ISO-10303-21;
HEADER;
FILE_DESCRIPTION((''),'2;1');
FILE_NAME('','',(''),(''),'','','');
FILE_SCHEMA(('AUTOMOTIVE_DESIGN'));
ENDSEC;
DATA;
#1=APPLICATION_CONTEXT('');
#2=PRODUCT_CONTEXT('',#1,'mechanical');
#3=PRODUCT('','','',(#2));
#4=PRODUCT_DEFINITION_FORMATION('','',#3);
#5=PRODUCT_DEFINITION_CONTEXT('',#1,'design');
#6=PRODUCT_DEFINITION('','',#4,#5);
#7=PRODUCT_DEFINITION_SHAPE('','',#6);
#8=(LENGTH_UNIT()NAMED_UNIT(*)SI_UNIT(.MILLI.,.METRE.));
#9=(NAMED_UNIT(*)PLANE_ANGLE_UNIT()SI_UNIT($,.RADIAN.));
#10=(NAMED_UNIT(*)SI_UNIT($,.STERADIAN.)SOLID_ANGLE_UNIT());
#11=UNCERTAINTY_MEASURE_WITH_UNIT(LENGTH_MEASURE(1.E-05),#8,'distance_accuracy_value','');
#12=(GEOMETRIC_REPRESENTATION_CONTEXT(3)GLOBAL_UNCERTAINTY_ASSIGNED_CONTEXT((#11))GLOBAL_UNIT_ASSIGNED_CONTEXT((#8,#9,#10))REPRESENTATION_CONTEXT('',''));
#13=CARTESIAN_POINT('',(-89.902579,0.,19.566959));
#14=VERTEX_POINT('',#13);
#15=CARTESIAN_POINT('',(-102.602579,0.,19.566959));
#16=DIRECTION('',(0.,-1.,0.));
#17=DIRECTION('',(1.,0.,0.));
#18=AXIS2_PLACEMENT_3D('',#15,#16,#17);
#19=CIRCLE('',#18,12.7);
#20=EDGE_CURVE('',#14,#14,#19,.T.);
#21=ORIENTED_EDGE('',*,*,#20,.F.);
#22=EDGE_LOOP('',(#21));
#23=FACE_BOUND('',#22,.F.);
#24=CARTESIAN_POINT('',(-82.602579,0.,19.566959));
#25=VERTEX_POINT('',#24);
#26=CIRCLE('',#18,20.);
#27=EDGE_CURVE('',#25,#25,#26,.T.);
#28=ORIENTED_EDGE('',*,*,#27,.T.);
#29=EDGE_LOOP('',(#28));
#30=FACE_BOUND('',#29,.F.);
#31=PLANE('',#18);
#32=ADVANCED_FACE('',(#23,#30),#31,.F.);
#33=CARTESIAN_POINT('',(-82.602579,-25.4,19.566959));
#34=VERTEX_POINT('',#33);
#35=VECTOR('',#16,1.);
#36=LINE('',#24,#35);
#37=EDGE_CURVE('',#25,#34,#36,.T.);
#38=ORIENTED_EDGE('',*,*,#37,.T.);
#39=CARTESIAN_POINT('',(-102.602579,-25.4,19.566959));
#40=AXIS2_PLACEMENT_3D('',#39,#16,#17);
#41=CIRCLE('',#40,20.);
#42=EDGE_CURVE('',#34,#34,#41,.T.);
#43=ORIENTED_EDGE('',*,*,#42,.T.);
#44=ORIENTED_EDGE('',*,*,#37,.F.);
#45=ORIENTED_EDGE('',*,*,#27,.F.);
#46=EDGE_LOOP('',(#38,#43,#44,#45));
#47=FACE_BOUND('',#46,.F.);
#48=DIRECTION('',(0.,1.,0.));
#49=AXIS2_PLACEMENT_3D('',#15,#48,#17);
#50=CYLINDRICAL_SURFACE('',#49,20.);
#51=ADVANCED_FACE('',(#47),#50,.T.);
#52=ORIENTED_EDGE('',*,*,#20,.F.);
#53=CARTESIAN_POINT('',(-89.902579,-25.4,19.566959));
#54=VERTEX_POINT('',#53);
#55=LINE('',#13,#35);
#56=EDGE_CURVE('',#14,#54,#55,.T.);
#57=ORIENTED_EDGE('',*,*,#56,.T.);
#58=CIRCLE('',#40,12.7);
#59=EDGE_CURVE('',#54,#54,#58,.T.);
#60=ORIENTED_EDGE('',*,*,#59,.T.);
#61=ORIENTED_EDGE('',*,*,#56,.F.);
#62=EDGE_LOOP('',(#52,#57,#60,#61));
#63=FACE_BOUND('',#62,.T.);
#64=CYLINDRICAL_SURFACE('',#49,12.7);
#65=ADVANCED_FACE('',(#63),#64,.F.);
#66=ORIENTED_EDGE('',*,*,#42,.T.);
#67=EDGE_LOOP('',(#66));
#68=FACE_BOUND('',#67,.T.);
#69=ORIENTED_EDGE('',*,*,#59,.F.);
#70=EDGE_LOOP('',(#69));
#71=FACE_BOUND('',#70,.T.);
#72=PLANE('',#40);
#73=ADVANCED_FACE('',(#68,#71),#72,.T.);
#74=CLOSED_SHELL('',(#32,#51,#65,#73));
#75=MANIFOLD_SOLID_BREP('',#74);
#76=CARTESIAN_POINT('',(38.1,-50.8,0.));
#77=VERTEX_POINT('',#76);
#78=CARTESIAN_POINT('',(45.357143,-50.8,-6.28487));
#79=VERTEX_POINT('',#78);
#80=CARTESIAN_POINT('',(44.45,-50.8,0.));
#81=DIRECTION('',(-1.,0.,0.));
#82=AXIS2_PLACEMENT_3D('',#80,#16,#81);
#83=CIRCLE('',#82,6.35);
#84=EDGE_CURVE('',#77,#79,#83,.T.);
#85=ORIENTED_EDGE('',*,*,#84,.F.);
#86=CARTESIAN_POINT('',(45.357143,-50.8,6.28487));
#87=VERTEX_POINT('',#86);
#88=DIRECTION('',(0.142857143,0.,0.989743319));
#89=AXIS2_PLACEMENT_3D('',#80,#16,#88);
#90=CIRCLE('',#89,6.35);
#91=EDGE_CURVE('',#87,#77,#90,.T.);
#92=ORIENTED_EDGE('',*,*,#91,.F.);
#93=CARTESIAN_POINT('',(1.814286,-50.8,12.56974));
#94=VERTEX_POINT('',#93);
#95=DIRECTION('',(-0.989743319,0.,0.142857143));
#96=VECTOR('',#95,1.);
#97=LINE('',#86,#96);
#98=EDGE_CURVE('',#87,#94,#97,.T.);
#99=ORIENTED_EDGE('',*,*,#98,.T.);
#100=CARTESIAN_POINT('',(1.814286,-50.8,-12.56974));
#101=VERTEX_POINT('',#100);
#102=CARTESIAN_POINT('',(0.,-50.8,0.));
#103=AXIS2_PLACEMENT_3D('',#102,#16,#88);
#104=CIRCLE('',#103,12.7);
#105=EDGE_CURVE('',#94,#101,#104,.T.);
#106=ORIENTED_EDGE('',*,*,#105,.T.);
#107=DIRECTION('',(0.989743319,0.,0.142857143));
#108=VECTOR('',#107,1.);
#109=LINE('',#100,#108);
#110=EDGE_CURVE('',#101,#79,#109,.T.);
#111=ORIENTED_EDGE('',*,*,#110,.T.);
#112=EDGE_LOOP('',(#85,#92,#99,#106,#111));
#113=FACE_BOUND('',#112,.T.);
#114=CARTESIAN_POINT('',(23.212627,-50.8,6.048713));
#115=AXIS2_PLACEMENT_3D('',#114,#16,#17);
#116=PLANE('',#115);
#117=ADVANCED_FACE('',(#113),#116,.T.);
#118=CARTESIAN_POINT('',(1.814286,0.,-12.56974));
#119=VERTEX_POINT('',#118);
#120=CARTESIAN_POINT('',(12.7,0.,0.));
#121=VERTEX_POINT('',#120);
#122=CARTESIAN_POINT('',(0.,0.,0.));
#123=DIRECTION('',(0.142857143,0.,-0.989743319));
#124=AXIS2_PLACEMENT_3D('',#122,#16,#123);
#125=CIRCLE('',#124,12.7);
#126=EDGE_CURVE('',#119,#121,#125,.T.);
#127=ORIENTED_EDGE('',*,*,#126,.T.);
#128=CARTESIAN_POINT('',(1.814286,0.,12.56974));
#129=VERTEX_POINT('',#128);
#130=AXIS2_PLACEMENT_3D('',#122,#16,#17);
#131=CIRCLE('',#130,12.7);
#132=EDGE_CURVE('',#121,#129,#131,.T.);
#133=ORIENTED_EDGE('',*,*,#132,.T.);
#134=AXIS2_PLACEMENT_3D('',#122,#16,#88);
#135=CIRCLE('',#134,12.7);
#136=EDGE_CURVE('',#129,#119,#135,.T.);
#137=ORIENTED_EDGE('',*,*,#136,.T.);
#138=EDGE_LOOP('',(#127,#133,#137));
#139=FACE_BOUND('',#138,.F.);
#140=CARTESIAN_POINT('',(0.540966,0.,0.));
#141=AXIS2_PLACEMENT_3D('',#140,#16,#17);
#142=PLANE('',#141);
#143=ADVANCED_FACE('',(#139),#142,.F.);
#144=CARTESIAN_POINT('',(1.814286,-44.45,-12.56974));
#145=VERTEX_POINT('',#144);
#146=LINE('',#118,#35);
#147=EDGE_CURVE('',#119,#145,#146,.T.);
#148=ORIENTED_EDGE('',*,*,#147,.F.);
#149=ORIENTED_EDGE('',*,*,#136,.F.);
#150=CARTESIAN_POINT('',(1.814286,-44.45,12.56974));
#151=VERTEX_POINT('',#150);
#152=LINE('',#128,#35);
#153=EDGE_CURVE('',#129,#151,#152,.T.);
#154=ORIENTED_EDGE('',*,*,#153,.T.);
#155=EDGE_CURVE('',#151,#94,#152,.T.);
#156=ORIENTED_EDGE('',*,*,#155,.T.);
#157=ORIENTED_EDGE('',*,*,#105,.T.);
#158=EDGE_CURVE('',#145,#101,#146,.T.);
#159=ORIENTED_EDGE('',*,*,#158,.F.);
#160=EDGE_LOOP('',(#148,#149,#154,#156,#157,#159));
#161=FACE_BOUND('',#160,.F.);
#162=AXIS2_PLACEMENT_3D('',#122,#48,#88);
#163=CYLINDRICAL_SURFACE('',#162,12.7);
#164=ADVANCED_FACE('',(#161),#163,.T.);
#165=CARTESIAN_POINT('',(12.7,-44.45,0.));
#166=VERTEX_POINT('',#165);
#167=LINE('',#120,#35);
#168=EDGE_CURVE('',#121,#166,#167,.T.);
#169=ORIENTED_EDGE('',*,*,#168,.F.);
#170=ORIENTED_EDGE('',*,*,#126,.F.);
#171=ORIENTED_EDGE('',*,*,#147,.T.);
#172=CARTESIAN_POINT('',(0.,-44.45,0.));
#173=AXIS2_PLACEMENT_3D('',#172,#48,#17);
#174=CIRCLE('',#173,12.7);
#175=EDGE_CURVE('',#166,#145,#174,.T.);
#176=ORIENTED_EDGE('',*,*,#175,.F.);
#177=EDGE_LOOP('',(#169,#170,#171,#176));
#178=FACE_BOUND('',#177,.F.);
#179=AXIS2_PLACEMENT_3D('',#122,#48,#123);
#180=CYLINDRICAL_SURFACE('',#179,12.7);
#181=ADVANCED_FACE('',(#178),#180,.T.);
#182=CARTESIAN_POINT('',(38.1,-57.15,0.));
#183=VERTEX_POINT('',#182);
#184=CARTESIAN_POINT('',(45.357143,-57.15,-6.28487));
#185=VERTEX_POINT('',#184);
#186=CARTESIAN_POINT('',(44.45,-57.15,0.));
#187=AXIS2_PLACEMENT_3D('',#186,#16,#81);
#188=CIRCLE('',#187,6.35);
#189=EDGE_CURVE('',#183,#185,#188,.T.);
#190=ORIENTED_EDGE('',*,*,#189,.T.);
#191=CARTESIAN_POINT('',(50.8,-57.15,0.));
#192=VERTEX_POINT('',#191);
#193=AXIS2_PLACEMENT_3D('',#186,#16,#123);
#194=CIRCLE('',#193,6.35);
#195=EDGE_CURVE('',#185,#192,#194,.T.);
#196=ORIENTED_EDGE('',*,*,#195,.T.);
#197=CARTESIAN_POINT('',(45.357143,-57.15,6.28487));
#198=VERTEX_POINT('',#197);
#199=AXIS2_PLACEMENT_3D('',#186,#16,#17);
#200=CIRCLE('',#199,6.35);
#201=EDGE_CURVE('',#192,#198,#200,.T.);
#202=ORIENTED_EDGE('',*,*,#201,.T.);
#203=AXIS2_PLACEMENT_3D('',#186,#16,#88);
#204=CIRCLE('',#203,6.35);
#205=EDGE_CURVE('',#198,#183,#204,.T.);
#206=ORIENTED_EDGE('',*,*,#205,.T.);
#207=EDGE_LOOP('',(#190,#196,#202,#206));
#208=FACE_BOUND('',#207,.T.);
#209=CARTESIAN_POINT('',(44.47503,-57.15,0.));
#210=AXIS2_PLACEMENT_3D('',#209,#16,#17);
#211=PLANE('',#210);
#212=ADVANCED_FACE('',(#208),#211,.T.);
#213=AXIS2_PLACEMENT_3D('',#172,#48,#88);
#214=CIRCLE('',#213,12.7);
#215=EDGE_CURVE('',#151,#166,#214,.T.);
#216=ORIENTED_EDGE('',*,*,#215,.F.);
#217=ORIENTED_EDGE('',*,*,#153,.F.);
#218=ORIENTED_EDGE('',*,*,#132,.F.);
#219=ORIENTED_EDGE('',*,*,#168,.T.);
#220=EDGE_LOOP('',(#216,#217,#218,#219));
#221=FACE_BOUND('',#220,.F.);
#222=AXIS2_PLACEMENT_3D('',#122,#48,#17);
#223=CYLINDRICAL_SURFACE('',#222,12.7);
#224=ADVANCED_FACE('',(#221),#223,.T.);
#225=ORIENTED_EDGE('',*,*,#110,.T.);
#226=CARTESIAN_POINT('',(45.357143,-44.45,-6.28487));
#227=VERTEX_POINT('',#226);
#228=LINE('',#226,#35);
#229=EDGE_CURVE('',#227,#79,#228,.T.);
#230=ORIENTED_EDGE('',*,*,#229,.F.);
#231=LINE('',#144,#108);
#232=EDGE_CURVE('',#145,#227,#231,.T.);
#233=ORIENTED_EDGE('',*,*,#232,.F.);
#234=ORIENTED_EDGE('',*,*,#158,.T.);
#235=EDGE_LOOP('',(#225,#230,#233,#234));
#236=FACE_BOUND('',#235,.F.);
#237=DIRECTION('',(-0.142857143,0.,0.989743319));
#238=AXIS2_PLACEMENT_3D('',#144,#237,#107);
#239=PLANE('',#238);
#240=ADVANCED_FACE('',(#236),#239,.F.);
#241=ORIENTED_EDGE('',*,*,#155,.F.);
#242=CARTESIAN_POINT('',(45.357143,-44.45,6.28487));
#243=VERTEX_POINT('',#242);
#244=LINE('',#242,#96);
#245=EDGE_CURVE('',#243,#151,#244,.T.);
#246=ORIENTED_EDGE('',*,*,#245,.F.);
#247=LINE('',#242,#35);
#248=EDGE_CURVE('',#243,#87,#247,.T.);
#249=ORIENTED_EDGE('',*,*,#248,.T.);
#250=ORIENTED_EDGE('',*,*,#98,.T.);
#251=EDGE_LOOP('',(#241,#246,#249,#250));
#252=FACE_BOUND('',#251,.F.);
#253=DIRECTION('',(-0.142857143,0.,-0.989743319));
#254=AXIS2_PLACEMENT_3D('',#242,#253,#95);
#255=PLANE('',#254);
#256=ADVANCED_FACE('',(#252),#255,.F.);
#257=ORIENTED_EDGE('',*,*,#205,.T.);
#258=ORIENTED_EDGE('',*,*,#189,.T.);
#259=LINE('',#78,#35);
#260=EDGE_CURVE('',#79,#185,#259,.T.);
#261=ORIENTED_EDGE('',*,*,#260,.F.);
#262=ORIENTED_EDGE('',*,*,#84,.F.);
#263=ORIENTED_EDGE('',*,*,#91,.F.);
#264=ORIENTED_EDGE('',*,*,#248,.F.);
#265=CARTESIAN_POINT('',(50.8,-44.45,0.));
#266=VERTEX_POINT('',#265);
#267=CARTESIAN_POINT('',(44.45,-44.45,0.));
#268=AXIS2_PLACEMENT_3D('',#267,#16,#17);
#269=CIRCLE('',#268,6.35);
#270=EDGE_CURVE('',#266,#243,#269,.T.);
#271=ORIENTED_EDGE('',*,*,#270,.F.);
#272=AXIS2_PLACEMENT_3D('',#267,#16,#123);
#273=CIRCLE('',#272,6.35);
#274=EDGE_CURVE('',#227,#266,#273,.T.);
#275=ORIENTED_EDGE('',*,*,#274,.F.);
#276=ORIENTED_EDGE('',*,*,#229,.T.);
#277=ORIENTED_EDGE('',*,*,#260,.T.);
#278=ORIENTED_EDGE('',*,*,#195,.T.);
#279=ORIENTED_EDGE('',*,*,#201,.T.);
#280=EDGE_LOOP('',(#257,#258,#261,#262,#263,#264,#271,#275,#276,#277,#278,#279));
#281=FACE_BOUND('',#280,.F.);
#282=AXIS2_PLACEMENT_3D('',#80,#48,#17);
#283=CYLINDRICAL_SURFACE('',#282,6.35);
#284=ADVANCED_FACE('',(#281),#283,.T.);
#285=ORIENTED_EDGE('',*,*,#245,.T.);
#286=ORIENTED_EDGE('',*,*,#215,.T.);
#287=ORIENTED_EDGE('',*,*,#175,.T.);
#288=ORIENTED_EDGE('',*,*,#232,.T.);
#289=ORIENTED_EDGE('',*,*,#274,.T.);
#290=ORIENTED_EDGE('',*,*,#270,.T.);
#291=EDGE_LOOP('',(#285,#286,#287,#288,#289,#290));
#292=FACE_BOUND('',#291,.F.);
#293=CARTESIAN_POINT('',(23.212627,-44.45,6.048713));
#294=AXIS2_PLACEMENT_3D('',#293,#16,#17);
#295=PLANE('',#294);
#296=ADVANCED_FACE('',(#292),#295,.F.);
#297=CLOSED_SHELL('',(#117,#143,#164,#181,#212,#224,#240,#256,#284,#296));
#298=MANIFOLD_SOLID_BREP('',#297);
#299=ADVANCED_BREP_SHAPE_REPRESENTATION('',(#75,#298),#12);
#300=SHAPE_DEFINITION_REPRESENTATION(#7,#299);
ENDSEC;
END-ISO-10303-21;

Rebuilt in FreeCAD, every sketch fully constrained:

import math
import FreeCAD as App
import Part
import Sketcher
Q = App.Units.Quantity

doc = App.newDocument("Part")
params = doc.addObject("Spreadsheet::Sheet", "Params")
for row, (alias, value) in enumerate([
    ("sketch1_radius", "0.5 in"),
    ("pad1_length", "2 in"),
    ("sketch2_radius", "0.5 in"),
    ("sketch2_radius2", "0.25 in"),
    ("pad2_length", "0.25 in"),
    ("sketch3_radius", "0.25 in"),
    ("pad3_length", "0.25 in"),
    ("sketch4_diameter", "1 in"),
    ("pad4_length", "1 in"),
], start=1):
    params.set(f"A{row}", alias)
    params.set(f"B{row}", "=" + value)
    params.setAlias(f"B{row}", alias)

body = doc.addObject("PartDesign::Body", "Body")

# Sketch on XZ plane
sketch1 = body.newObject("Sketcher::SketchObject", "Sketch")
sketch1.AttachmentSupport = (doc.getObject("XZ_Plane"), [""])
sketch1.MapMode = "FlatFace"
sketch1.addGeometry(Part.ArcOfCircle(Part.Circle(App.Vector(0, 0, 0), App.Vector(0, 0, 1), 13), math.radians(-82), math.radians(0)), False)
sketch1.addGeometry(Part.ArcOfCircle(Part.Circle(App.Vector(0, 0, 0), App.Vector(0, 0, 1), 13), math.radians(0), math.radians(82)), False)
sketch1.addGeometry(Part.ArcOfCircle(Part.Circle(App.Vector(0, 0, 0), App.Vector(0, 0, 1), 13), math.radians(82), math.radians(278)), False)
sketch1.addConstraint(Sketcher.Constraint("Tangent", 0, 2, 1, 1))
sketch1.addConstraint(Sketcher.Constraint("Tangent", 1, 2, 2, 1))
sketch1.addConstraint(Sketcher.Constraint("Tangent", 2, 2, 0, 1))
sketch1.addConstraint(Sketcher.Constraint("Coincident", 0, 3, -1, 1))
sketch1.addConstraint(Sketcher.Constraint("PointOnObject", 0, 2, -1))
sketch1.addConstraint(Sketcher.Constraint("Vertical", 1, 2, 2, 2))
sketch1.addConstraint(Sketcher.Constraint("Radius", 0, Q("0.5 in")))
sketch1.addConstraint(Sketcher.Constraint("DistanceY", -1, 1, 1, 2, 12.56974))
sketch1.setExpression("Constraints[6]", "Params.sketch1_radius")
pad1 = body.newObject("PartDesign::Pad", "Pad")
pad1.Profile = sketch1
pad1.setExpression("Length", "Params.pad1_length")

# Sketch on XZ plane
sketch2 = body.newObject("Sketcher::SketchObject", "Sketch001")
sketch2.AttachmentSupport = (doc.getObject("XZ_Plane"), [""])
sketch2.MapMode = "FlatFace"
sketch2.AttachmentOffset = App.Placement(App.Vector(0, 0, 1.75 * 25.4), App.Rotation())
sketch2.addGeometry(Part.ArcOfCircle(Part.Circle(App.Vector(0, 0, 0), App.Vector(0, 0, 1), 13), math.radians(0), math.radians(82)), False)
sketch2.addGeometry(Part.ArcOfCircle(Part.Circle(App.Vector(0, 0, 0), App.Vector(0, 0, 1), 13), math.radians(-82), math.radians(0)), False)
sketch2.addGeometry(Part.LineSegment(App.Vector(2, -13, 0), App.Vector(45, -6, 0)), False)
sketch2.addGeometry(Part.ArcOfCircle(Part.Circle(App.Vector(44, 0, 0), App.Vector(0, 0, 1), 6), math.radians(-82), math.radians(0)), False)
sketch2.addGeometry(Part.ArcOfCircle(Part.Circle(App.Vector(44, 0, 0), App.Vector(0, 0, 1), 6), math.radians(0), math.radians(82)), False)
sketch2.addGeometry(Part.LineSegment(App.Vector(45, 6, 0), App.Vector(2, 13, 0)), False)
sketch2.addConstraint(Sketcher.Constraint("Tangent", 0, 1, 1, 2))
sketch2.addConstraint(Sketcher.Constraint("Tangent", 1, 1, 2, 1))
sketch2.addConstraint(Sketcher.Constraint("Tangent", 2, 2, 3, 1))
sketch2.addConstraint(Sketcher.Constraint("Tangent", 3, 2, 4, 1))
sketch2.addConstraint(Sketcher.Constraint("Tangent", 4, 2, 5, 1))
sketch2.addConstraint(Sketcher.Constraint("Tangent", 5, 2, 0, 2))
sketch2.addConstraint(Sketcher.Constraint("Coincident", 0, 3, -1, 1))
sketch2.addConstraint(Sketcher.Constraint("Equal", 0, 1))
sketch2.addConstraint(Sketcher.Constraint("Equal", 3, 4))
sketch2.addConstraint(Sketcher.Constraint("PointOnObject", 3, 3, -1))
sketch2.addConstraint(Sketcher.Constraint("PointOnObject", 0, 1, -1))
sketch2.addConstraint(Sketcher.Constraint("PointOnObject", 3, 2, -1))
sketch2.addConstraint(Sketcher.Constraint("Radius", 0, Q("0.5 in")))
sketch2.addConstraint(Sketcher.Constraint("Radius", 3, Q("0.25 in")))
sketch2.addConstraint(Sketcher.Constraint("DistanceX", -1, 1, 3, 2, Q("2 in")))
sketch2.setExpression("Constraints[12]", "Params.sketch2_radius")
sketch2.setExpression("Constraints[13]", "Params.sketch2_radius2")
pad2 = body.newObject("PartDesign::Pad", "Pad001")
pad2.Profile = sketch2
pad2.setExpression("Length", "Params.pad2_length")

# Sketch on XZ plane
sketch3 = body.newObject("Sketcher::SketchObject", "Sketch002")
sketch3.AttachmentSupport = (doc.getObject("XZ_Plane"), [""])
sketch3.MapMode = "FlatFace"
sketch3.AttachmentOffset = App.Placement(App.Vector(0, 0, 2 * 25.4), App.Rotation())
sketch3.addGeometry(Part.ArcOfCircle(Part.Circle(App.Vector(44, 0, 0), App.Vector(0, 0, 1), 6), math.radians(82), math.radians(180)), False)
sketch3.addGeometry(Part.ArcOfCircle(Part.Circle(App.Vector(44, 0, 0), App.Vector(0, 0, 1), 6), math.radians(180), math.radians(278)), False)
sketch3.addGeometry(Part.ArcOfCircle(Part.Circle(App.Vector(44, 0, 0), App.Vector(0, 0, 1), 6), math.radians(-82), math.radians(0)), False)
sketch3.addGeometry(Part.ArcOfCircle(Part.Circle(App.Vector(44, 0, 0), App.Vector(0, 0, 1), 6), math.radians(0), math.radians(82)), False)
sketch3.addConstraint(Sketcher.Constraint("Tangent", 0, 2, 1, 1))
sketch3.addConstraint(Sketcher.Constraint("Tangent", 1, 2, 2, 1))
sketch3.addConstraint(Sketcher.Constraint("Tangent", 2, 2, 3, 1))
sketch3.addConstraint(Sketcher.Constraint("Tangent", 3, 2, 0, 1))
sketch3.addConstraint(Sketcher.Constraint("Equal", 0, 1))
sketch3.addConstraint(Sketcher.Constraint("Symmetric", 1, 2, 3, 2, -1))
sketch3.addConstraint(Sketcher.Constraint("PointOnObject", 0, 2, -1))
sketch3.addConstraint(Sketcher.Constraint("PointOnObject", 2, 2, -1))
sketch3.addConstraint(Sketcher.Constraint("Radius", 0, Q("0.25 in")))
sketch3.addConstraint(Sketcher.Constraint("DistanceX", -1, 1, 2, 2, Q("2 in")))
sketch3.addConstraint(Sketcher.Constraint("DistanceY", 1, 2, -1, 1, 6.28487))
sketch3.setExpression("Constraints[8]", "Params.sketch3_radius")
pad3 = body.newObject("PartDesign::Pad", "Pad002")
pad3.Profile = sketch3
pad3.setExpression("Length", "Params.pad3_length")
body2 = doc.addObject("PartDesign::Body", "Body001")

# Sketch on XZ plane
sketch4 = body2.newObject("Sketcher::SketchObject", "Sketch003")
sketch4.AttachmentSupport = (doc.getObject("XZ_Plane001"), [""])
sketch4.MapMode = "FlatFace"
sketch4.addGeometry(Part.Circle(App.Vector(-103, 20, 0), App.Vector(0, 0, 1), 20), False)
sketch4.addGeometry(Part.Circle(App.Vector(-103, 20, 0), App.Vector(0, 0, 1), 13), False)
sketch4.addConstraint(Sketcher.Constraint("Coincident", 1, 3, 0, 3))
sketch4.addConstraint(Sketcher.Constraint("Diameter", 1, Q("1 in")))
sketch4.addConstraint(Sketcher.Constraint("Diameter", 0, 40.0))
sketch4.addConstraint(Sketcher.Constraint("DistanceX", 0, 3, -1, 1, 102.602579))
sketch4.addConstraint(Sketcher.Constraint("DistanceY", -1, 1, 0, 3, 19.566959))
sketch4.setExpression("Constraints[1]", "Params.sketch4_diameter")
pad4 = body2.newObject("PartDesign::Pad", "Pad003")
pad4.Profile = sketch4
pad4.setExpression("Length", "Params.pad4_length")

doc.recompute()
